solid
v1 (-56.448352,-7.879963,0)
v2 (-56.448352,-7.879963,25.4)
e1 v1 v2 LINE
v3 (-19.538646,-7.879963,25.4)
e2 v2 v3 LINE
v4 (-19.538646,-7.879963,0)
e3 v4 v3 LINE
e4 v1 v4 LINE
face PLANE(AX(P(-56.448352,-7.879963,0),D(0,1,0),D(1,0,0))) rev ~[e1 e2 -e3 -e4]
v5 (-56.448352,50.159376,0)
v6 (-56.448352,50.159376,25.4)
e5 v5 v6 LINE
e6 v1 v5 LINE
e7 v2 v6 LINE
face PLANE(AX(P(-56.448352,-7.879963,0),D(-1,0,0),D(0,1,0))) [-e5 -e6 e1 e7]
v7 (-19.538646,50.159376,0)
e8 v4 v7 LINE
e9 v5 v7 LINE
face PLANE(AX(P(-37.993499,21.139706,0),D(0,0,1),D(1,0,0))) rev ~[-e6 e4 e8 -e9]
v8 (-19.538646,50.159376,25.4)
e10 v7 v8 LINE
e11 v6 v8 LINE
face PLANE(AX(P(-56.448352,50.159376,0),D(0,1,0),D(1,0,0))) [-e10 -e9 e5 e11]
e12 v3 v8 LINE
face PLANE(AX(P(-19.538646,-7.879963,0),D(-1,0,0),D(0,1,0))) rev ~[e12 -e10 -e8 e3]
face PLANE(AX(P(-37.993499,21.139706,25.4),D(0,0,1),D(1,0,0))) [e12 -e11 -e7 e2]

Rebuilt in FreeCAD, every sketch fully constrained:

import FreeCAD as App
import Part
import Sketcher
Q = App.Units.Quantity

doc = App.newDocument("Part")
body = doc.addObject("PartDesign::Body", "Body")

# Sketch on XY plane
sketch1 = doc.addObject("Sketcher::SketchObject", "Sketch")
body.addObject(sketch1)
sketch1.AttachmentSupport = (doc.XY_Plane, [""])
sketch1.MapMode = "FlatFace"
sketch1.addGeometry([
    Part.LineSegment(App.Vector(-56, 50, 0), App.Vector(-56, -8, 0)),
    Part.LineSegment(App.Vector(-56, -8, 0), App.Vector(-20, -8, 0)),
    Part.LineSegment(App.Vector(-20, -8, 0), App.Vector(-20, 50, 0)),
    Part.LineSegment(App.Vector(-20, 50, 0), App.Vector(-56, 50, 0)),
], False)
sketch1.addConstraint([
    Sketcher.Constraint("Coincident", 0, 2, 1, 1),
    Sketcher.Constraint("Coincident", 1, 2, 2, 1),
    Sketcher.Constraint("Coincident", 2, 2, 3, 1),
    Sketcher.Constraint("Coincident", 3, 2, 0, 1),
    Sketcher.Constraint("Vertical", 0),
    Sketcher.Constraint("Horizontal", 1),
    Sketcher.Constraint("Vertical", 2),
    Sketcher.Constraint("Horizontal", 3),
    Sketcher.Constraint("DistanceY", 0, 2, 0, 1, 58.039339),
    Sketcher.Constraint("DistanceX", 1, 1, 1, 2, 36.909707),
    Sketcher.Constraint("DistanceX", 0, 2, -1, 1, 56.448352),
    Sketcher.Constraint("DistanceY", 0, 2, -1, 1, 7.879963),
])
pad1 = doc.addObject("PartDesign::Pad", "Pad")
body.addObject(pad1)
pad1.Profile = sketch1
pad1.Length = Q("1 in")

doc.recompute()
